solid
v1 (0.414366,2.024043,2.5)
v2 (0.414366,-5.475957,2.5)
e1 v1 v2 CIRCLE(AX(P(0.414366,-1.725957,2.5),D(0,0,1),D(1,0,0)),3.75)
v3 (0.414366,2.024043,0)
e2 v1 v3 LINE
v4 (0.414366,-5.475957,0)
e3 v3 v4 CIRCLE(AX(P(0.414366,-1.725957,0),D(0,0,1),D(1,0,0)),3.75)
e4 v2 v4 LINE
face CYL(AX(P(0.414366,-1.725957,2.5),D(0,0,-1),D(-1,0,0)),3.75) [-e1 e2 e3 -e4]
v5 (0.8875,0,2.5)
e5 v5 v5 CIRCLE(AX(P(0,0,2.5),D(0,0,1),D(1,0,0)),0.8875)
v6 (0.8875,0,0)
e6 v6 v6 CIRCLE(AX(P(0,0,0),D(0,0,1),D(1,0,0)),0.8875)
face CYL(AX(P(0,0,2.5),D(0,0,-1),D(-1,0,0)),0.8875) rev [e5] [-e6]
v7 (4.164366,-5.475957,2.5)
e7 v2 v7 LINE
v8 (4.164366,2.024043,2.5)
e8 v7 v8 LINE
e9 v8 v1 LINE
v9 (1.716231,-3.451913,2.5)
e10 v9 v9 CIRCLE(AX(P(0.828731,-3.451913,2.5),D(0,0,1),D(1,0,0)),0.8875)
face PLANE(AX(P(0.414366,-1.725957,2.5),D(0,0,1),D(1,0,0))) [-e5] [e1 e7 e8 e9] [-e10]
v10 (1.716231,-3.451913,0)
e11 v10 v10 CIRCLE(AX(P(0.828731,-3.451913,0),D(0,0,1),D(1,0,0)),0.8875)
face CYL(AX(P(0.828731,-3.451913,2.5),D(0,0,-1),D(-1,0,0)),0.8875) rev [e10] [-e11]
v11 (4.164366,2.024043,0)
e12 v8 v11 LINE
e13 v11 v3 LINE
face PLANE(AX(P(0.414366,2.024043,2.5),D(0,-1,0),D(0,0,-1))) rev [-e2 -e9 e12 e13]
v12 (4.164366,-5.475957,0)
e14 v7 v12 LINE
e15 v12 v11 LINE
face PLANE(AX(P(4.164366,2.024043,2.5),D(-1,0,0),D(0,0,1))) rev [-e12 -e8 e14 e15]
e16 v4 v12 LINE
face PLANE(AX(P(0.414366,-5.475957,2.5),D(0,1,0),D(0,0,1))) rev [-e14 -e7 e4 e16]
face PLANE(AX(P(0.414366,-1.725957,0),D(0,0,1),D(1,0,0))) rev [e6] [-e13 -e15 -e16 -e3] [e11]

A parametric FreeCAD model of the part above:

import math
import FreeCAD as App
import Part
import Sketcher

V = App.Vector

doc = App.newDocument("Part")
body = doc.addObject("PartDesign::Body", "Body")

# Sketch on XY plane
sketch1 = doc.addObject("Sketcher::SketchObject", "Sketch")
body.addObject(sketch1)
sketch1.AttachmentSupport = (doc.XY_Plane, [""])
sketch1.MapMode = "FlatFace"
sketch1.addGeometry([
    Part.LineSegment(V(4.2, 2, 0), V(0.4, 2, 0)),  # 0
    Part.ArcOfCircle(Part.Circle(V(0.4, -1.7, 0), V(0, 0, 1), 3.8), math.radians(90), math.radians(270)),  # 1
    Part.LineSegment(V(0.4, -5.5, 0), V(4.2, -5.5, 0)),  # 2
    Part.LineSegment(V(4.2, -5.5, 0), V(4.2, 2, 0)),  # 3
    Part.Circle(V(0.8, -3.5, 0), V(0, 0, 1), 0.9),  # 4
    Part.Circle(V(0, 0, 0), V(0, 0, 1), 0.9),  # 5
], False)
sketch1.addConstraint([
    Sketcher.Constraint("Tangent", 0, 2, 1, 1),
    Sketcher.Constraint("Tangent", 1, 2, 2, 1),
    Sketcher.Constraint("Coincident", 2, 2, 3, 1),
    Sketcher.Constraint("Coincident", 3, 2, 0, 1),
    Sketcher.Constraint("Horizontal", 0),
    Sketcher.Constraint("Horizontal", 2),
    Sketcher.Constraint("Vertical", 3),
    Sketcher.Constraint("Coincident", 5, 3, -1, 1),
    Sketcher.Constraint("Equal", 4, 5),
    Sketcher.Constraint("Radius", 1, 3.75),
    Sketcher.Constraint("Diameter", 4, 1.775),
    Sketcher.Constraint("DistanceX", 0, 2, 0, 1, 3.75),
    Sketcher.Constraint("DistanceX", -1, 1, 4, 3, 0.828731),
    Sketcher.Constraint("DistanceX", -1, 1, 1, 3, 0.414366),
    Sketcher.Constraint("DistanceY", 1, 3, -1, 1, 1.725957),
    Sketcher.Constraint("DistanceY", 4, 3, -1, 1, 3.451913),
])
pad1 = doc.addObject("PartDesign::Pad", "Pad")
body.addObject(pad1)
pad1.Profile = sketch1
pad1.Length = 2.5

doc.recompute()
